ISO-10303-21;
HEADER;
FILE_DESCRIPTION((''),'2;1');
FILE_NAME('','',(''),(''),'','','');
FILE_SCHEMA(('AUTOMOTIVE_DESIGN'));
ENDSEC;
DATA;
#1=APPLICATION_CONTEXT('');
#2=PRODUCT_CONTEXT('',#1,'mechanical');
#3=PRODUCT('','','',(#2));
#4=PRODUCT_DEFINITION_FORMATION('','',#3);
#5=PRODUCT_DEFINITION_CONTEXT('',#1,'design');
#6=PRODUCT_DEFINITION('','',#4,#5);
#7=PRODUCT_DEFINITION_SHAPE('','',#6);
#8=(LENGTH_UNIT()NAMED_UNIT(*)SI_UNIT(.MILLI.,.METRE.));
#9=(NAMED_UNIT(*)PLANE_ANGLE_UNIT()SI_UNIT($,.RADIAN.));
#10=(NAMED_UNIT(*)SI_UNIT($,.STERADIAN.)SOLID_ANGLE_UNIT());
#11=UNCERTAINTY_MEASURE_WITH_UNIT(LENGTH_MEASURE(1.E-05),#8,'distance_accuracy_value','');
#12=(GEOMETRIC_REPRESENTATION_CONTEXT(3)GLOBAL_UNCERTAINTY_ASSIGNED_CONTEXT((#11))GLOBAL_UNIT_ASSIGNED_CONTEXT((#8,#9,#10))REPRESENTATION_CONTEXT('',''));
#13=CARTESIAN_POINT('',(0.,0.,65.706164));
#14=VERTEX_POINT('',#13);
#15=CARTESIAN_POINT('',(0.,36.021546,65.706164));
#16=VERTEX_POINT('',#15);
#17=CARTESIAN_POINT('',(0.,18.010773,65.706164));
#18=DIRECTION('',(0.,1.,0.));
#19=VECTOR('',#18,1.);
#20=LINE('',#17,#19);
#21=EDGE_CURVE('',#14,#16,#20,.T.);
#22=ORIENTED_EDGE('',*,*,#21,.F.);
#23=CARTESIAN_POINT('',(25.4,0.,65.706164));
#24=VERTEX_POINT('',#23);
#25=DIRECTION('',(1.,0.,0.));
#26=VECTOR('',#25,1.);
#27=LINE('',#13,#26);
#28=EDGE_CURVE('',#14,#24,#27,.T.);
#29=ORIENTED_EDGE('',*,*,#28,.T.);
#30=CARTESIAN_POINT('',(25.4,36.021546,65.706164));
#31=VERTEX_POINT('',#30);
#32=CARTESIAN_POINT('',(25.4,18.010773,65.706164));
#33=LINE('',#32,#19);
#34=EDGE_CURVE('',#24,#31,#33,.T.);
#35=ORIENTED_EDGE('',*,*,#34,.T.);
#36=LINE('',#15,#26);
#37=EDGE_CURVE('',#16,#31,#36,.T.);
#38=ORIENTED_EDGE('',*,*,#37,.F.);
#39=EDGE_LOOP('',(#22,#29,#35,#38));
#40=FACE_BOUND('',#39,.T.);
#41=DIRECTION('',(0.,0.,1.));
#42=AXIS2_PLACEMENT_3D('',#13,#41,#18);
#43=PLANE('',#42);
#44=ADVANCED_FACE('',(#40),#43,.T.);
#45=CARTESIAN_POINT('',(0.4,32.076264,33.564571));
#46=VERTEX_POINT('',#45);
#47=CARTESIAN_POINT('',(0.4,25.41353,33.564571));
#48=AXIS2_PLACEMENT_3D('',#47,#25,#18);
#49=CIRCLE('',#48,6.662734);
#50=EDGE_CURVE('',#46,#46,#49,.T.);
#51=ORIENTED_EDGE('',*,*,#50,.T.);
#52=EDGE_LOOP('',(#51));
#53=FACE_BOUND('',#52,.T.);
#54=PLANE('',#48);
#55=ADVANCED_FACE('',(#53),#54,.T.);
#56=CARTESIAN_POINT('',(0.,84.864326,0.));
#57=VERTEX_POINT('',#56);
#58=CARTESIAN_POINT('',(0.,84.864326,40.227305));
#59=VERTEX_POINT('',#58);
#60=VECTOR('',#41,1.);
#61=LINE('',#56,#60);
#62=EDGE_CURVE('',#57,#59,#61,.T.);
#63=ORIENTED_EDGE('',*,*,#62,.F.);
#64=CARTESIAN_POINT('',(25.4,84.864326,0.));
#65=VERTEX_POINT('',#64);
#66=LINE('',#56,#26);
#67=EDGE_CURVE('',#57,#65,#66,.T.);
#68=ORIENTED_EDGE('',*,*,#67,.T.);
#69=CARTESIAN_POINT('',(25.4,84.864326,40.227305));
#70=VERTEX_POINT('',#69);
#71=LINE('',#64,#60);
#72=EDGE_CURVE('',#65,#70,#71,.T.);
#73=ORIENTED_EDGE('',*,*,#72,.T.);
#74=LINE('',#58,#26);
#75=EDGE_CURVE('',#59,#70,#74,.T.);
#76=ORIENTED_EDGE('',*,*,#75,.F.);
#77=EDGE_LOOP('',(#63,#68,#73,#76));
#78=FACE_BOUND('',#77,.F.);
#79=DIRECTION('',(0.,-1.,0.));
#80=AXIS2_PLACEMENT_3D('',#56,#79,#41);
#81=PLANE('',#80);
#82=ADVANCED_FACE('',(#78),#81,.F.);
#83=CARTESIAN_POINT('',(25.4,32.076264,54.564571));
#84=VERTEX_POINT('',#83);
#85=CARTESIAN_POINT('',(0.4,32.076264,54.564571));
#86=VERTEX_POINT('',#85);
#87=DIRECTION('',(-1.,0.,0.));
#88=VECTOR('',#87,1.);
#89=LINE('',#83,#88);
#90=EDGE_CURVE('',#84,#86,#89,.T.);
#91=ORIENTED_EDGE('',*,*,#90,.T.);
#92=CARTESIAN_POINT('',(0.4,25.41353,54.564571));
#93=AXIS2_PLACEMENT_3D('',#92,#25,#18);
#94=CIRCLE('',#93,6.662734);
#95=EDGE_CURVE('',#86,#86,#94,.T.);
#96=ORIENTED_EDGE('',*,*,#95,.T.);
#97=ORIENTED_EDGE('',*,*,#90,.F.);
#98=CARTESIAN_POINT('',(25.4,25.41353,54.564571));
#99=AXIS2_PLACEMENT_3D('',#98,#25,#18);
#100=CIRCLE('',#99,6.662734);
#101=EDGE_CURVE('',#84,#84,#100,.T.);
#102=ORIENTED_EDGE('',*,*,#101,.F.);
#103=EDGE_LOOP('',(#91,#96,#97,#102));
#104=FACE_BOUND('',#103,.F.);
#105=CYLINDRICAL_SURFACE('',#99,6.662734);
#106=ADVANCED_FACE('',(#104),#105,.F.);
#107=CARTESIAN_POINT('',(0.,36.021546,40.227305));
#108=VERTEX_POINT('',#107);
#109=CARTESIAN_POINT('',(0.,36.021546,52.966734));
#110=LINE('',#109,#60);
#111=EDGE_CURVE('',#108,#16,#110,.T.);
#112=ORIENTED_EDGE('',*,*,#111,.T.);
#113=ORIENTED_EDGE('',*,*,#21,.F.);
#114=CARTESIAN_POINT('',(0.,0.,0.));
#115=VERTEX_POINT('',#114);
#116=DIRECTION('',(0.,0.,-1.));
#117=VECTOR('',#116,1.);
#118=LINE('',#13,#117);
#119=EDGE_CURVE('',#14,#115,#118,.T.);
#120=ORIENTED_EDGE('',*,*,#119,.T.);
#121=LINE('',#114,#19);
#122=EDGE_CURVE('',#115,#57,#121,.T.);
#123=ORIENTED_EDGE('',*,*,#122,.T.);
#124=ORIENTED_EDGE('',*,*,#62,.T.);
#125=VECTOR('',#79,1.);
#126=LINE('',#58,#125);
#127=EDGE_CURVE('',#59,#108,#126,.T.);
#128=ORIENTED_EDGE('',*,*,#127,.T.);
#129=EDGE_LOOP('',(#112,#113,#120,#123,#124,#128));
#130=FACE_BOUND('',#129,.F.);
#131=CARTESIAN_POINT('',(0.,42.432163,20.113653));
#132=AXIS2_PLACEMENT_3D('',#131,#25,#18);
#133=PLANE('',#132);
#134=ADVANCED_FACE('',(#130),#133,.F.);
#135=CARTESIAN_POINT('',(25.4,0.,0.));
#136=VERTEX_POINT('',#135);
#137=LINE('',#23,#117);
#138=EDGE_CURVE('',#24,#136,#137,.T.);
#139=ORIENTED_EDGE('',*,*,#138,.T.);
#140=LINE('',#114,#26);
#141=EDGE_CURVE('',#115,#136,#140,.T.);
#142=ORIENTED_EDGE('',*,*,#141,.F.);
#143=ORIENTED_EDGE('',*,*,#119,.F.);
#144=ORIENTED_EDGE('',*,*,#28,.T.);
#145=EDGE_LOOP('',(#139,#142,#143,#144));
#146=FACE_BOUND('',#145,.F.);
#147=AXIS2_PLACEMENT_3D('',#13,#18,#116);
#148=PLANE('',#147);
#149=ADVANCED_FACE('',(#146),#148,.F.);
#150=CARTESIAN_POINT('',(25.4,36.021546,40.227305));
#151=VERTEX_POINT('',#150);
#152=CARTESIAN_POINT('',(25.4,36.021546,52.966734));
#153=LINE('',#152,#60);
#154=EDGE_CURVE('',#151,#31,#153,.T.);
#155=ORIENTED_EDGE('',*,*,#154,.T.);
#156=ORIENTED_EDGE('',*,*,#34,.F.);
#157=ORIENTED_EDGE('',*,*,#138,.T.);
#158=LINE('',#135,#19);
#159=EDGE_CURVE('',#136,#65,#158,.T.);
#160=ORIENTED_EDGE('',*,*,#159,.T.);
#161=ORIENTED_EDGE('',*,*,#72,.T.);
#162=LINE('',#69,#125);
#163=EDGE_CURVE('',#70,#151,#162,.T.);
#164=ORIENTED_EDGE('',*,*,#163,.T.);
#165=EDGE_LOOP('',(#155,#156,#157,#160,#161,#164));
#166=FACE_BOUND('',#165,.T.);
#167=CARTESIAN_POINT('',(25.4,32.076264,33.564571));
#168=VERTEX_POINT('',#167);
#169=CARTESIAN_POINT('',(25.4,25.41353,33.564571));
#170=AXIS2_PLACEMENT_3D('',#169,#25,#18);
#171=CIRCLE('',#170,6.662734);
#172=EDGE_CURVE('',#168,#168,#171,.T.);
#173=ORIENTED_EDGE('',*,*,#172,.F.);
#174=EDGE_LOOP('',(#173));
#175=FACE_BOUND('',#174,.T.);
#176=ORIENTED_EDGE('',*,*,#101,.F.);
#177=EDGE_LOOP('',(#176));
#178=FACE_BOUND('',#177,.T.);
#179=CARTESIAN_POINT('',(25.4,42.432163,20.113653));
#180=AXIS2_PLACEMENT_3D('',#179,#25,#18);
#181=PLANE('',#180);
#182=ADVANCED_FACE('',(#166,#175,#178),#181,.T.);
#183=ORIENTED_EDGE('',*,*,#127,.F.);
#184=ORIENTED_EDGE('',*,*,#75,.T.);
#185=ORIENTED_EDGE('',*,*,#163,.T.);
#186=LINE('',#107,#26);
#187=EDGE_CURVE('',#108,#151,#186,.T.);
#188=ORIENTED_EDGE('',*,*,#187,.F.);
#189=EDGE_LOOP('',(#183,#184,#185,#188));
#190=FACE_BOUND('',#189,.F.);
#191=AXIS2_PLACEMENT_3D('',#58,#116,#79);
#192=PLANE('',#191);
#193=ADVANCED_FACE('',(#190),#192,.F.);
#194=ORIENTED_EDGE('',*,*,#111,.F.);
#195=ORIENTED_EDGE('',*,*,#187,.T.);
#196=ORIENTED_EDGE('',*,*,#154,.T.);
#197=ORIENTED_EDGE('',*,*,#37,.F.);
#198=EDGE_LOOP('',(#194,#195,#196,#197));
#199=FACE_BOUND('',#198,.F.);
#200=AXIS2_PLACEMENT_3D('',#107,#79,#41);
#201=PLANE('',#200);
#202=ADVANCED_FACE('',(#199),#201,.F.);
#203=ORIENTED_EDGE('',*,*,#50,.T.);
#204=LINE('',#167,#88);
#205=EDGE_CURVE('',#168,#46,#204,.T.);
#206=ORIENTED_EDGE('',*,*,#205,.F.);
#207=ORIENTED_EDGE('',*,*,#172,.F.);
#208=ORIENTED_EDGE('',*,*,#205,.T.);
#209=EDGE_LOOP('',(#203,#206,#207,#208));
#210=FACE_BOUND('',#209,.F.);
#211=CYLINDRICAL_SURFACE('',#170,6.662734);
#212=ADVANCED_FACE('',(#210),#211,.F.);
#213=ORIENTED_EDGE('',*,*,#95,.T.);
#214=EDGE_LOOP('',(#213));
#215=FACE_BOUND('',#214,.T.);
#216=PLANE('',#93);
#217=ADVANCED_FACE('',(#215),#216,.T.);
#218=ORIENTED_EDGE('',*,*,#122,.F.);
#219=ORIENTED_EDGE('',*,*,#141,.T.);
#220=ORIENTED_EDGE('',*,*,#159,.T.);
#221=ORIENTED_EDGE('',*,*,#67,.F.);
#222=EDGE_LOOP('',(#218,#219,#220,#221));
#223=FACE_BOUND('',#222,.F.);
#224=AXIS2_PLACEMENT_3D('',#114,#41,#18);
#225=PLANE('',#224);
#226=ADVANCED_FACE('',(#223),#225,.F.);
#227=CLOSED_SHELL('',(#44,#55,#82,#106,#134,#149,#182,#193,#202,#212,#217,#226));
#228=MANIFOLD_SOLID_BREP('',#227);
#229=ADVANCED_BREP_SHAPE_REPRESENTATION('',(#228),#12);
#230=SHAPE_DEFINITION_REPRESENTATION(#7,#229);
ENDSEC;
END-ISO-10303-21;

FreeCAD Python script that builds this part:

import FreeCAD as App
import Part
import Sketcher

V = App.Vector

doc = App.newDocument("Part")
body = doc.addObject("PartDesign::Body", "Body")

# Sketch on YZ plane
sketch1 = body.newObject("Sketcher::SketchObject", "Sketch")
sketch1.AttachmentSupport = (doc.getObject("YZ_Plane"), [""])
sketch1.MapMode = "FlatFace"
sketch1.addGeometry([
    Part.LineSegment(V(0, 0, 0), V(84.864326, 0, 0)),  # 0
    Part.LineSegment(V(84.864326, 0, 0), V(84.864326, 40.227305, 0)),  # 1
    Part.LineSegment(V(84.864326, 40.227305, 0), V(36.021546, 40.227305, 0)),  # 2
    Part.LineSegment(V(36.021546, 40.227305, 0), V(36.021546, 65.706164, 0)),  # 3
    Part.LineSegment(V(36.021546, 65.706164, 0), V(0, 65.706164, 0)),  # 4
    Part.LineSegment(V(0, 65.706164, 0), V(0, 0, 0)),  # 5
], False)
sketch1.addConstraint([
    Sketcher.Constraint("Coincident", 0, 2, 1, 1),
    Sketcher.Constraint("Coincident", 1, 2, 2, 1),
    Sketcher.Constraint("Coincident", 2, 2, 3, 1),
    Sketcher.Constraint("Coincident", 3, 2, 4, 1),
    Sketcher.Constraint("Coincident", 4, 2, 5, 1),
    Sketcher.Constraint("Coincident", 5, 2, 0, 1),
    Sketcher.Constraint("Horizontal", 0),
    Sketcher.Constraint("Vertical", 1),
    Sketcher.Constraint("Horizontal", 2),
    Sketcher.Constraint("Vertical", 3),
    Sketcher.Constraint("Horizontal", 4),
    Sketcher.Constraint("Vertical", 5),
    Sketcher.Constraint("Coincident", 5, 2, -1, 1),
    Sketcher.Constraint("DistanceX", 2, 2, 2, 1, 48.84278),
    Sketcher.Constraint("DistanceY", 3, 1, 3, 2, 25.478859),
    Sketcher.Constraint("DistanceX", 0, 1, 0, 2, 84.864326),
    Sketcher.Constraint("DistanceY", 1, 1, 1, 2, 40.227305),
])
pad1 = body.newObject("PartDesign::Pad", "Pad")
pad1.Profile = sketch1
pad1.Length = 25.4

# Sketch on YZ plane
sketch2 = body.newObject("Sketcher::SketchObject", "Sketch001")
sketch2.AttachmentSupport = (doc.getObject("YZ_Plane"), [""])
sketch2.MapMode = "FlatFace"
sketch2.AttachmentOffset = App.Placement(V(0, 0, 25.4), App.Rotation())
sketch2.addGeometry([
    Part.Circle(V(25.41353, 33.564571, 0), V(0, 0, 1), 6.662734),
    Part.Circle(V(25.41353, 54.564571, 0), V(0, 0, 1), 6.662734),
], False)
sketch2.addConstraint([
    Sketcher.Constraint("Equal", 0, 1),
    Sketcher.Constraint("Vertical", 0, 3, 1, 3),
    Sketcher.Constraint("DistanceY", 0, 3, 1, 3, 21.0),
    Sketcher.Constraint("Diameter", 0, 13.325468),
    Sketcher.Constraint("DistanceX", -1, 1, 0, 3, 25.41353),
    Sketcher.Constraint("DistanceY", -1, 1, 0, 3, 33.564571),
])
pocket1 = body.newObject("PartDesign::Pocket", "Pocket")
pocket1.Profile = sketch2
pocket1.Length = 25

doc.recompute()
